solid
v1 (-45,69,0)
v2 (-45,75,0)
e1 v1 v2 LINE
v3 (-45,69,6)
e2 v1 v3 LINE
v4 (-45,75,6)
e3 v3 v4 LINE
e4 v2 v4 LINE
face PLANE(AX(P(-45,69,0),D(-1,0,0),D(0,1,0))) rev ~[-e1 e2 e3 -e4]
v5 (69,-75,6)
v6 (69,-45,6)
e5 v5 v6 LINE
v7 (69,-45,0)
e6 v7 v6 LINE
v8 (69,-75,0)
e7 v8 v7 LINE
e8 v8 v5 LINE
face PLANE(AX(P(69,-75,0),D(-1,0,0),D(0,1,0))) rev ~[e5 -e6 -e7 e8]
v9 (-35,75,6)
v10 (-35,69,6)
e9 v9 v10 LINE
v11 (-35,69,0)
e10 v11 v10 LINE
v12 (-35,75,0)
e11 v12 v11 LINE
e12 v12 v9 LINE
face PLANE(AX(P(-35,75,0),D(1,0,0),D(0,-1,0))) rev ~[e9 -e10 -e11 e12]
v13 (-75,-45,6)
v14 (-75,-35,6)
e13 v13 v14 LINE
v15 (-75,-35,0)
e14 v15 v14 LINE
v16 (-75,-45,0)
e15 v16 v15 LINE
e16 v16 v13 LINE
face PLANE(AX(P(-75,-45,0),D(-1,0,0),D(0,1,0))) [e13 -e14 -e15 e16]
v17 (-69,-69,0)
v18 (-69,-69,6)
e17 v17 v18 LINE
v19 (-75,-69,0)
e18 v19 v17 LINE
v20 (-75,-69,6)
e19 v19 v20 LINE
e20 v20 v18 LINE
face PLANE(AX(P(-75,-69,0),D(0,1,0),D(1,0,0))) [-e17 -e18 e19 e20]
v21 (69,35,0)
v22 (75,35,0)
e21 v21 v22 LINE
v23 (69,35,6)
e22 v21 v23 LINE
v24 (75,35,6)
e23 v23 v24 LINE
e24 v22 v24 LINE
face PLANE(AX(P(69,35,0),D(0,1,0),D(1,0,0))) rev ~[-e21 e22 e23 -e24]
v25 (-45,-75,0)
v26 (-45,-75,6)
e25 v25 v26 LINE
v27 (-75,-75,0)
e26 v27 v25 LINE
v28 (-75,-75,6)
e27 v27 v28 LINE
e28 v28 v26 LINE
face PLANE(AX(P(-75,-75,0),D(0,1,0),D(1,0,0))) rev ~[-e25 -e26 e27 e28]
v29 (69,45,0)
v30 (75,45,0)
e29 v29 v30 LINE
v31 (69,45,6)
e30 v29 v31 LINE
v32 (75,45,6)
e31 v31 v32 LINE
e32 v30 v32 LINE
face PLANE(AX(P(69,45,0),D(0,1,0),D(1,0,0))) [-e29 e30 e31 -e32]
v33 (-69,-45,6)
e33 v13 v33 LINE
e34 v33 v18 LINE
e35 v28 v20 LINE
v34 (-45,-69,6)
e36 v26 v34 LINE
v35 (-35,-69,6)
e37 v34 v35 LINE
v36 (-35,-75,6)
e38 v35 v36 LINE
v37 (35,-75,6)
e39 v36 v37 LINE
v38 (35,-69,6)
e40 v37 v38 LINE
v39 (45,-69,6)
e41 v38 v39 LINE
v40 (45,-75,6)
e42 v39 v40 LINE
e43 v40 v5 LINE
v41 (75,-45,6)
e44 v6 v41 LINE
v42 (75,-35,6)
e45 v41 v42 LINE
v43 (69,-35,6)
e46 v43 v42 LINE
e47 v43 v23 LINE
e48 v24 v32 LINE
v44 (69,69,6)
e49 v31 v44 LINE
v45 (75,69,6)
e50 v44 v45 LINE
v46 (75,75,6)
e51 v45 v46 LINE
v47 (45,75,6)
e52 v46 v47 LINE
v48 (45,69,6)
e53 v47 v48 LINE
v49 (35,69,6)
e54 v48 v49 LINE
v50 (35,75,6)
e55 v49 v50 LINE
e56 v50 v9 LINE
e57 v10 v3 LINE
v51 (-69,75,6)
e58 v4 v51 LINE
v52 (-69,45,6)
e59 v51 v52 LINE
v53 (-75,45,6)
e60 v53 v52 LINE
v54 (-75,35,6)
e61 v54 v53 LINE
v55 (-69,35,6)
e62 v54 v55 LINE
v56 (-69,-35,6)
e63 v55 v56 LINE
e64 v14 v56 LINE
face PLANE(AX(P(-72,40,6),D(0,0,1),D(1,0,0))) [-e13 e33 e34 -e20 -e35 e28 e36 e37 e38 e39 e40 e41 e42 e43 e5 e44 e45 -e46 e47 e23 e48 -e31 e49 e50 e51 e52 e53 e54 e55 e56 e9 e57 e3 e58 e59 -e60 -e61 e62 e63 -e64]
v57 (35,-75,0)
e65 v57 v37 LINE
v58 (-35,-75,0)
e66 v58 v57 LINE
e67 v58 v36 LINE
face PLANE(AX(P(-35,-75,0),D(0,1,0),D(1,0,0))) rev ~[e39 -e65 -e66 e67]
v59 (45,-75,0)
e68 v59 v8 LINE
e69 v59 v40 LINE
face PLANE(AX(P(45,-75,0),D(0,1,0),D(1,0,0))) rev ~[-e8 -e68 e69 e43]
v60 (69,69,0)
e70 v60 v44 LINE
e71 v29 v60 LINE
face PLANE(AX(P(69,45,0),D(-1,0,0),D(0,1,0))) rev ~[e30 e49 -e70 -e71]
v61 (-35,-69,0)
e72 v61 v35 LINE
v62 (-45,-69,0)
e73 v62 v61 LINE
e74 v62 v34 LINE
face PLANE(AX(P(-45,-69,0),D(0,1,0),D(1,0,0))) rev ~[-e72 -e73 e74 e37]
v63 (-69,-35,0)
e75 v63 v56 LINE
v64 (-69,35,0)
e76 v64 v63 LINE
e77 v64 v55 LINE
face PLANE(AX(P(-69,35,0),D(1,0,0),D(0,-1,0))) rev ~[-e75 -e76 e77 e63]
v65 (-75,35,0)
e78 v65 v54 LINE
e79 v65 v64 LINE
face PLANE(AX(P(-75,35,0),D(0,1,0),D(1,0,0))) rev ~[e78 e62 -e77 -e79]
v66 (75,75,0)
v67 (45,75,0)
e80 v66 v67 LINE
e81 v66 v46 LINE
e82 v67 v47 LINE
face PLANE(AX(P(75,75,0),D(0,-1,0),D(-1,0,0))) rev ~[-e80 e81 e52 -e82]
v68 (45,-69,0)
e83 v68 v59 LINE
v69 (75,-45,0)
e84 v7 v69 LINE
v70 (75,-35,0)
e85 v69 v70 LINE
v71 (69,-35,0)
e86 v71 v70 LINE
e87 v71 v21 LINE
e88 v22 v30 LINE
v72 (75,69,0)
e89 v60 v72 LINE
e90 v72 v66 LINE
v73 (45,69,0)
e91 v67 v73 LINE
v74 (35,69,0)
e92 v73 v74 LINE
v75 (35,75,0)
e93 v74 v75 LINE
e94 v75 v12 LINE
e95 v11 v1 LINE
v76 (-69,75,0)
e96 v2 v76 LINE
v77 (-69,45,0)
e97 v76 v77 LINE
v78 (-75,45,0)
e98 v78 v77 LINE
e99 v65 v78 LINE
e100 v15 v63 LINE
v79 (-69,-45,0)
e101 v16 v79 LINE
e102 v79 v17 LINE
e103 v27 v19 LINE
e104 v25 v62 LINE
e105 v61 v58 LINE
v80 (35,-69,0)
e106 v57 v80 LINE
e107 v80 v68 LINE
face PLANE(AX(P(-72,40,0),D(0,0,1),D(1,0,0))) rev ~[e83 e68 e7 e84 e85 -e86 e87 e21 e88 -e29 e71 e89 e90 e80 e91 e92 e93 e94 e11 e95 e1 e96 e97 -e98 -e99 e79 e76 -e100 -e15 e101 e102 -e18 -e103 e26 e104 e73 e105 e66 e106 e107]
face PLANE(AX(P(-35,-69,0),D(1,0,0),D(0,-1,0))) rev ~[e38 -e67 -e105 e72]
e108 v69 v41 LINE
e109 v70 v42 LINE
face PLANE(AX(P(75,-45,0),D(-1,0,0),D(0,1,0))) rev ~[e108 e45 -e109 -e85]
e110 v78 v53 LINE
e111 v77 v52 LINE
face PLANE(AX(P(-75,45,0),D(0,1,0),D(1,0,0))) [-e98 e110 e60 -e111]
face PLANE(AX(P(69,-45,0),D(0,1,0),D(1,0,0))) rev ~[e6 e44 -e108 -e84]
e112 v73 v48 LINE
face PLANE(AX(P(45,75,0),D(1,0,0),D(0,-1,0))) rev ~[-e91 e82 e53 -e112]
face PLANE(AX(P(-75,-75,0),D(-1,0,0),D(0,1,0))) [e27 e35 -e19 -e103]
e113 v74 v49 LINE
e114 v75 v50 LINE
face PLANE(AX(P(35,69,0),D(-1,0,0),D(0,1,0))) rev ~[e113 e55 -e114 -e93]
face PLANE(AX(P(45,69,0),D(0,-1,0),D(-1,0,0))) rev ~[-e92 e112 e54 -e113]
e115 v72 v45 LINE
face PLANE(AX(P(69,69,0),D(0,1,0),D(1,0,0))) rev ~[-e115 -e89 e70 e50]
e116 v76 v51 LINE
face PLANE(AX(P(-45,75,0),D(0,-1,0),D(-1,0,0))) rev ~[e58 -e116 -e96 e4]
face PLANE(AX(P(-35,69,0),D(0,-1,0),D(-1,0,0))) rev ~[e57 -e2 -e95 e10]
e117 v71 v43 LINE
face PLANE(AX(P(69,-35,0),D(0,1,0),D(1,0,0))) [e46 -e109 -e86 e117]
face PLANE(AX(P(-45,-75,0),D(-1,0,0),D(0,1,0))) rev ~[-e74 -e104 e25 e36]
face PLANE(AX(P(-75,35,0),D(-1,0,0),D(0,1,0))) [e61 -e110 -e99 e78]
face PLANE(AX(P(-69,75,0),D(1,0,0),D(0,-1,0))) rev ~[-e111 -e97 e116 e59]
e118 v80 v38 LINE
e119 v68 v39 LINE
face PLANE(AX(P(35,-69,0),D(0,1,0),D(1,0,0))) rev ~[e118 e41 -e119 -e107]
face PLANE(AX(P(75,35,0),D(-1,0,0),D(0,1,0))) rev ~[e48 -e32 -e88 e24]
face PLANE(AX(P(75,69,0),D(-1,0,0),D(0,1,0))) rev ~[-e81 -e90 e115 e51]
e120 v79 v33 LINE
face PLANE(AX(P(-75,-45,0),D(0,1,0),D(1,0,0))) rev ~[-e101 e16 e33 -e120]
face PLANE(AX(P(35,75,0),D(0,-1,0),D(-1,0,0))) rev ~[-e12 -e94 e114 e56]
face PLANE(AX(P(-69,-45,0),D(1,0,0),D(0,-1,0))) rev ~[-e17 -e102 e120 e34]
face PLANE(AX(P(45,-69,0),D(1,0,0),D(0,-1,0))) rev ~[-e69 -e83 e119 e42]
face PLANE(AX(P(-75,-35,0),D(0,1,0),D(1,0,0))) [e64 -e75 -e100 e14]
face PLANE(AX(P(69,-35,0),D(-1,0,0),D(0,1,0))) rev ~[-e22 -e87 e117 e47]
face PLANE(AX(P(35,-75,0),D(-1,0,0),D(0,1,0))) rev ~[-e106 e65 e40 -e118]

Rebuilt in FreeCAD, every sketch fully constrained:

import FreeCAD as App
import Part
import Sketcher


def add_polygon(sketch, points):
    """Adds a closed chain of lines whose ends are joined by coincident constraints."""
    first, n = sketch.GeometryCount, len(points)
    for a, b in zip(points, points[1:] + points[:1]):
        sketch.addGeometry(Part.LineSegment(App.Vector(*a, 0), App.Vector(*b, 0)), False)
    for i in range(n):
        sketch.addConstraint(Sketcher.Constraint("Coincident", first + i, 2, first + (i + 1) % n, 1))

doc = App.newDocument("Part")
body = doc.addObject("PartDesign::Body", "Body")

# Sketch on XY plane
sketch1 = doc.addObject("Sketcher::SketchObject", "Sketch")
body.addObject(sketch1)
sketch1.AttachmentSupport = (doc.XY_Plane, [""])
sketch1.MapMode = "FlatFace"
add_polygon(sketch1, [(-75, 45), (-75, 35), (-69, 35), (-69, -35), (-75, -35), (-75, -45), (-69, -45), (-69, -69), (-75, -69), (-75, -75), (-45, -75), (-45, -69), (-35, -69), (-35, -75), (35, -75), (35, -69), (45, -69), (45, -75), (69, -75), (69, -45), (75, -45), (75, -35), (69, -35), (69, 35), (75, 35), (75, 45), (69, 45), (69, 69), (75, 69), (75, 75), (45, 75), (45, 69), (35, 69), (35, 75), (-35, 75), (-35, 69), (-45, 69), (-45, 75), (-69, 75), (-69, 45)])  # lines 0-39
sketch1.addConstraint(Sketcher.Constraint("Vertical", 0))
sketch1.addConstraint(Sketcher.Constraint("Horizontal", 1))
sketch1.addConstraint(Sketcher.Constraint("Vertical", 2))
sketch1.addConstraint(Sketcher.Constraint("Horizontal", 3))
sketch1.addConstraint(Sketcher.Constraint("Vertical", 4))
sketch1.addConstraint(Sketcher.Constraint("Horizontal", 5))
sketch1.addConstraint(Sketcher.Constraint("Vertical", 6))
sketch1.addConstraint(Sketcher.Constraint("Horizontal", 7))
sketch1.addConstraint(Sketcher.Constraint("Vertical", 8))
sketch1.addConstraint(Sketcher.Constraint("Horizontal", 9))
sketch1.addConstraint(Sketcher.Constraint("Vertical", 10))
sketch1.addConstraint(Sketcher.Constraint("Horizontal", 11))
sketch1.addConstraint(Sketcher.Constraint("Vertical", 12))
sketch1.addConstraint(Sketcher.Constraint("Horizontal", 13))
sketch1.addConstraint(Sketcher.Constraint("Vertical", 14))
sketch1.addConstraint(Sketcher.Constraint("Horizontal", 15))
sketch1.addConstraint(Sketcher.Constraint("Vertical", 16))
sketch1.addConstraint(Sketcher.Constraint("Horizontal", 17))
sketch1.addConstraint(Sketcher.Constraint("Vertical", 18))
sketch1.addConstraint(Sketcher.Constraint("Horizontal", 19))
sketch1.addConstraint(Sketcher.Constraint("Vertical", 20))
sketch1.addConstraint(Sketcher.Constraint("Horizontal", 21))
sketch1.addConstraint(Sketcher.Constraint("Vertical", 22))
sketch1.addConstraint(Sketcher.Constraint("Horizontal", 23))
sketch1.addConstraint(Sketcher.Constraint("Vertical", 24))
sketch1.addConstraint(Sketcher.Constraint("Horizontal", 25))
sketch1.addConstraint(Sketcher.Constraint("Vertical", 26))
sketch1.addConstraint(Sketcher.Constraint("Horizontal", 27))
sketch1.addConstraint(Sketcher.Constraint("Vertical", 28))
sketch1.addConstraint(Sketcher.Constraint("Horizontal", 29))
sketch1.addConstraint(Sketcher.Constraint("Vertical", 30))
sketch1.addConstraint(Sketcher.Constraint("Horizontal", 31))
sketch1.addConstraint(Sketcher.Constraint("Vertical", 32))
sketch1.addConstraint(Sketcher.Constraint("Horizontal", 33))
sketch1.addConstraint(Sketcher.Constraint("Vertical", 34))
sketch1.addConstraint(Sketcher.Constraint("Horizontal", 35))
sketch1.addConstraint(Sketcher.Constraint("Vertical", 36))
sketch1.addConstraint(Sketcher.Constraint("Horizontal", 37))
sketch1.addConstraint(Sketcher.Constraint("Vertical", 38))
sketch1.addConstraint(Sketcher.Constraint("Horizontal", 39))
sketch1.addConstraint(Sketcher.Constraint("Symmetric", 0, 2, 20, 2, -1, 1))
sketch1.addConstraint(Sketcher.Constraint("Symmetric", 2, 2, 22, 2, -1, 1))
sketch1.addConstraint(Sketcher.Constraint("Symmetric", 4, 2, 24, 2, -1, 1))
sketch1.addConstraint(Sketcher.Constraint("Symmetric", 6, 2, 26, 2, -1, 1))
sketch1.addConstraint(Sketcher.Constraint("Symmetric", 8, 2, 28, 2, -1, 1))
sketch1.addConstraint(Sketcher.Constraint("Symmetric", 10, 2, 30, 2, -1, 1))
sketch1.addConstraint(Sketcher.Constraint("Symmetric", 12, 2, 32, 2, -1, 1))
sketch1.addConstraint(Sketcher.Constraint("Symmetric", 14, 2, 34, 2, -1, 1))
sketch1.addConstraint(Sketcher.Constraint("Symmetric", 16, 2, 36, 2, -1, 1))
sketch1.addConstraint(Sketcher.Constraint("Symmetric", 18, 2, 38, 2, -1, 1))
sketch1.addConstraint(Sketcher.Constraint("Symmetric", 11, 2, 14, 2, -2))
sketch1.addConstraint(Sketcher.Constraint("Symmetric", 9, 2, 16, 2, -2))
sketch1.addConstraint(Sketcher.Constraint("Symmetric", 5, 2, 18, 2, -2))
sketch1.addConstraint(Sketcher.Constraint("Symmetric", 3, 2, 20, 2, -2))
sketch1.addConstraint(Sketcher.Constraint("Horizontal", 7, 2, 10, 2))
sketch1.addConstraint(Sketcher.Constraint("Horizontal", 9, 2, 12, 2))
sketch1.addConstraint(Sketcher.Constraint("Vertical", 2, 2, 5, 2))
sketch1.addConstraint(Sketcher.Constraint("Vertical", 4, 2, 7, 2))
sketch1.addConstraint(Sketcher.Constraint("Equal", 35, 0))
sketch1.addConstraint(Sketcher.Constraint("Equal", 33, 2))
sketch1.addConstraint(Sketcher.Constraint("Equal", 37, 6))
sketch1.addConstraint(Sketcher.Constraint("Equal", 39, 8))
sketch1.addConstraint(Sketcher.Constraint("DistanceX", 1, 1, 1, 2, 6.0))
sketch1.addConstraint(Sketcher.Constraint("DistanceX", 9, 1, 9, 2, 30.0))
sketch1.addConstraint(Sketcher.Constraint("DistanceX", 11, 1, 11, 2, 10.0))
sketch1.addConstraint(Sketcher.Constraint("DistanceX", 13, 1, 13, 2, 70.0))
pad1 = doc.addObject("PartDesign::Pad", "Pad")
body.addObject(pad1)
pad1.Profile = sketch1
pad1.Length = 6

doc.recompute()
